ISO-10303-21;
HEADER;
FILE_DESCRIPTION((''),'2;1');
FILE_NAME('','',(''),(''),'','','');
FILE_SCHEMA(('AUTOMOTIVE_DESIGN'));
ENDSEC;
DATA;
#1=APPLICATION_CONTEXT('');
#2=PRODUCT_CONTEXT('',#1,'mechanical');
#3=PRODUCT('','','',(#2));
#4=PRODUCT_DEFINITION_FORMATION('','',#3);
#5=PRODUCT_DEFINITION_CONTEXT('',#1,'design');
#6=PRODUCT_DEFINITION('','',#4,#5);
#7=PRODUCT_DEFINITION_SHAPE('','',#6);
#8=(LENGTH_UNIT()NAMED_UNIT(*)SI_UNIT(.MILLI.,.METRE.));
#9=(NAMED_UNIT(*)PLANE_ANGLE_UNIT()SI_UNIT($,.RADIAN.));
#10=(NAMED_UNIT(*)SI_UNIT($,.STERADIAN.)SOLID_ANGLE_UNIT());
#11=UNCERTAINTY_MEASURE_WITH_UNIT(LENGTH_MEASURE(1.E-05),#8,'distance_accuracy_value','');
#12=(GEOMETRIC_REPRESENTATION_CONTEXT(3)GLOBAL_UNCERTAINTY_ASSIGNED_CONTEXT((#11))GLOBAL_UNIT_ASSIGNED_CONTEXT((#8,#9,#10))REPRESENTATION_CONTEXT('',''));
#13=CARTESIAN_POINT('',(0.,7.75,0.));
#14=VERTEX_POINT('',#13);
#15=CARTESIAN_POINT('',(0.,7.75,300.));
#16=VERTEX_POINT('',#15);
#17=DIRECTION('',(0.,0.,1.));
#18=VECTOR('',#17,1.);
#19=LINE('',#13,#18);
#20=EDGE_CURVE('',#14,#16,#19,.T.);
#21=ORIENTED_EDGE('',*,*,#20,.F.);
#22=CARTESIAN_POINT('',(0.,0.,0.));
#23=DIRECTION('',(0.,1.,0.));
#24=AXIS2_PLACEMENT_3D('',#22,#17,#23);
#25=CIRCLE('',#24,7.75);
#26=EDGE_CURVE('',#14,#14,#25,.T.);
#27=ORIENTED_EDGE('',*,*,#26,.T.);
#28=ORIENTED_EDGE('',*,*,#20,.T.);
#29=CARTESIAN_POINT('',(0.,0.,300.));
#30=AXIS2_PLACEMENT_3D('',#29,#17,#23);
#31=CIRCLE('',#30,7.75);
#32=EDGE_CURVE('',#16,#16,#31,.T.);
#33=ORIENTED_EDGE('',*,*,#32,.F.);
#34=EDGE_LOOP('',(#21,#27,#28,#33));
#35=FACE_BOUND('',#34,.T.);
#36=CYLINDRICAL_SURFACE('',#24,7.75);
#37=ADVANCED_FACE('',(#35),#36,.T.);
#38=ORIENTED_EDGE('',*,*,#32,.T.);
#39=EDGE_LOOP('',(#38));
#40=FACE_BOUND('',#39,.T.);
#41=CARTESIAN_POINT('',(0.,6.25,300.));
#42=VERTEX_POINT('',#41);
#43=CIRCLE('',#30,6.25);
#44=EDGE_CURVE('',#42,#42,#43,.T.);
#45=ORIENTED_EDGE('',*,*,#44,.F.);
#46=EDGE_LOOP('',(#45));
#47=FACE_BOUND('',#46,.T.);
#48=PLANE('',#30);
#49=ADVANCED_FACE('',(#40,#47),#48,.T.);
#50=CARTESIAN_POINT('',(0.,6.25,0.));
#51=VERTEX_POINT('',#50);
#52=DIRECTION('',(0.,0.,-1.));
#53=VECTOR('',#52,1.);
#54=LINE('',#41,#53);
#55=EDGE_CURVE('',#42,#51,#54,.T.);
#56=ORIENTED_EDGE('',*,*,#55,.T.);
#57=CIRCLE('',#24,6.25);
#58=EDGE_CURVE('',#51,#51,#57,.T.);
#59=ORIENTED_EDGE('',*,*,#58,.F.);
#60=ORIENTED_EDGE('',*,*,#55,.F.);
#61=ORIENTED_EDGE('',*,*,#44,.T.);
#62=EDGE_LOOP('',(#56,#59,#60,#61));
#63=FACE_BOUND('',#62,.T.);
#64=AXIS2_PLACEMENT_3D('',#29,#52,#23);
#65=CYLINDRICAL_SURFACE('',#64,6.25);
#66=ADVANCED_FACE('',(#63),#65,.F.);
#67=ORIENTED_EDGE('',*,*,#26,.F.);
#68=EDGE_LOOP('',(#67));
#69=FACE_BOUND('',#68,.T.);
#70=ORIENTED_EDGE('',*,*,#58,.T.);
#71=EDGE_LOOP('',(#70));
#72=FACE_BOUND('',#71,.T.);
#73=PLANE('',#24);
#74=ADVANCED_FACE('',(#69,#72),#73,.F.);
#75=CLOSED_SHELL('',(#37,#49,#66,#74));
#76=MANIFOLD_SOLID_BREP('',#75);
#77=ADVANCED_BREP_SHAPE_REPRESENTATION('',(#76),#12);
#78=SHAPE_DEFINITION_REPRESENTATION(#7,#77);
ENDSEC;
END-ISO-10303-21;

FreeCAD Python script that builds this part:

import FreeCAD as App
import Part
import Sketcher
from FreeCAD import Vector
Q = App.Units.Quantity

doc = App.newDocument("Part")
body = doc.addObject("PartDesign::Body", "Body")

sketch1 = body.newObject("Sketcher::SketchObject", "Sketch")
sketch1.AttachmentSupport = (doc.getObject("YZ_Plane"), [""])
sketch1.MapMode = "FlatFace"
sketch1.addGeometry(Part.LineSegment(Vector(7.8, 300, 0), Vector(6.2, 300, 0)), False)
sketch1.addGeometry(Part.LineSegment(Vector(6.2, 300, 0), Vector(6.2, 0, 0)), False)
sketch1.addGeometry(Part.LineSegment(Vector(6.2, 0, 0), Vector(7.8, 0, 0)), False)
sketch1.addGeometry(Part.LineSegment(Vector(7.8, 0, 0), Vector(7.8, 300, 0)), False)
sketch1.addConstraint(Sketcher.Constraint("Coincident", 0, 2, 1, 1))
sketch1.addConstraint(Sketcher.Constraint("Coincident", 1, 2, 2, 1))
sketch1.addConstraint(Sketcher.Constraint("Coincident", 2, 2, 3, 1))
sketch1.addConstraint(Sketcher.Constraint("Coincident", 3, 2, 0, 1))
sketch1.addConstraint(Sketcher.Constraint("Horizontal", 0))
sketch1.addConstraint(Sketcher.Constraint("Vertical", 1))
sketch1.addConstraint(Sketcher.Constraint("Horizontal", 2))
sketch1.addConstraint(Sketcher.Constraint("Vertical", 3))
sketch1.addConstraint(Sketcher.Constraint("PointOnObject", 1, 2, -1))
sketch1.addConstraint(Sketcher.Constraint("DistanceY", 1, 2, 1, 1, Q("300 mm")))
sketch1.addConstraint(Sketcher.Constraint("DistanceX", 0, 2, 0, 1, Q("1.5 mm")))
sketch1.addConstraint(Sketcher.Constraint("DistanceX", -1, 1, 0, 2, Q("6.25 mm")))
revolution = body.newObject("PartDesign::Revolution", "Revolution")
revolution.Profile = sketch1
revolution.ReferenceAxis = (sketch1, ["V_Axis"])
revolution.Angle = 360

doc.recompute()
